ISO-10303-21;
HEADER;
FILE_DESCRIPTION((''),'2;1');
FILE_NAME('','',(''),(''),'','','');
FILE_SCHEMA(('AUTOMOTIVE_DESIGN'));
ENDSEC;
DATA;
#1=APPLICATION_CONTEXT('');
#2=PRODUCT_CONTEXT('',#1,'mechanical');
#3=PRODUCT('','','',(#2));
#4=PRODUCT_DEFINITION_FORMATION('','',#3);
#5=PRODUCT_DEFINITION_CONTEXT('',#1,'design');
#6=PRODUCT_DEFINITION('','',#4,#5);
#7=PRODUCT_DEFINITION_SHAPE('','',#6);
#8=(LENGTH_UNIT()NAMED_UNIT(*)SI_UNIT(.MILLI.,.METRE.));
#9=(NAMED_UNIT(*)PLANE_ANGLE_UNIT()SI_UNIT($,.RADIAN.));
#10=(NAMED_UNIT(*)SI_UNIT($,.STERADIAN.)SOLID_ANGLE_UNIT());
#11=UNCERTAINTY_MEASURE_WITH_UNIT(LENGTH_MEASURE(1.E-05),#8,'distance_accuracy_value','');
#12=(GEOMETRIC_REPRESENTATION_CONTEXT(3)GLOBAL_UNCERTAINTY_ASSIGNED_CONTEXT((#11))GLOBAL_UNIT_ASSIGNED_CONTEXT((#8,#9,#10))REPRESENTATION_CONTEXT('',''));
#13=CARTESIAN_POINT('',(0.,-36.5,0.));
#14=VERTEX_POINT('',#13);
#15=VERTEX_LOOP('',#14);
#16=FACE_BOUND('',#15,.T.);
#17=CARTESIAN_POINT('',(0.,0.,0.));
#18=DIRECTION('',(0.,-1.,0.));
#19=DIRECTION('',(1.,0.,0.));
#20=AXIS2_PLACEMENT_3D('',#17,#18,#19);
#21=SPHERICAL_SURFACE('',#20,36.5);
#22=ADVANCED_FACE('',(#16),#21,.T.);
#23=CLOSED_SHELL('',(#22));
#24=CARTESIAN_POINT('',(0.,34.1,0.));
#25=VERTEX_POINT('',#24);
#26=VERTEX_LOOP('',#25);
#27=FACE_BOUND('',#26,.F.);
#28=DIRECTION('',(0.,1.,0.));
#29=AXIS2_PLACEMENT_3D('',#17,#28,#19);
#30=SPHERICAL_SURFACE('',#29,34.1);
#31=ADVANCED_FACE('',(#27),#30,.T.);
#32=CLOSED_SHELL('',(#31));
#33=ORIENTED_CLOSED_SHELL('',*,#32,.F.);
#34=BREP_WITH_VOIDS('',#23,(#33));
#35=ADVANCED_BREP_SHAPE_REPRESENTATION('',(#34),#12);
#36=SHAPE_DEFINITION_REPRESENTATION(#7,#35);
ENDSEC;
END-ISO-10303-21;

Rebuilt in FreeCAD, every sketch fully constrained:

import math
import FreeCAD as App
import Part
import Sketcher

V = App.Vector

doc = App.newDocument("Part")
body = doc.addObject("PartDesign::Body", "Body")

# Sketch on XY plane
sketch1 = body.newObject("Sketcher::SketchObject", "Sketch")
sketch1.AttachmentSupport = (doc.getObject("XY_Plane"), [""])
sketch1.MapMode = "FlatFace"
sketch1.addGeometry(Part.LineSegment(V(0, 36.5, 0), V(0, 34.1, 0)), False)
sketch1.addGeometry(Part.ArcOfCircle(Part.Circle(V(0, 0, 0), V(0, 0, 1), 34.1), math.radians(-90), math.radians(90)), False)
sketch1.addGeometry(Part.LineSegment(V(0, -34.1, 0), V(0, -36.5, 0)), False)
sketch1.addGeometry(Part.ArcOfCircle(Part.Circle(V(0, 0, 0), V(0, 0, 1), 36.5), math.radians(-90), math.radians(90)), False)
sketch1.addConstraint(Sketcher.Constraint("Coincident", 0, 2, 1, 2))
sketch1.addConstraint(Sketcher.Constraint("Coincident", 1, 1, 2, 1))
sketch1.addConstraint(Sketcher.Constraint("Coincident", 2, 2, 3, 1))
sketch1.addConstraint(Sketcher.Constraint("Coincident", 3, 2, 0, 1))
sketch1.addConstraint(Sketcher.Constraint("Vertical", 0))
sketch1.addConstraint(Sketcher.Constraint("Vertical", 2))
sketch1.addConstraint(Sketcher.Constraint("Coincident", 1, 3, -1, 1))
sketch1.addConstraint(Sketcher.Constraint("Coincident", 3, 3, -1, 1))
sketch1.addConstraint(Sketcher.Constraint("PointOnObject", 0, 2, -2))
sketch1.addConstraint(Sketcher.Constraint("PointOnObject", 1, 1, -2))
sketch1.addConstraint(Sketcher.Constraint("Radius", 1, 34.1))
sketch1.addConstraint(Sketcher.Constraint("Radius", 3, 36.5))
revolution = body.newObject("PartDesign::Revolution", "Revolution")
revolution.Profile = sketch1
revolution.ReferenceAxis = (sketch1, ["V_Axis"])
revolution.Angle = 360

doc.recompute()
